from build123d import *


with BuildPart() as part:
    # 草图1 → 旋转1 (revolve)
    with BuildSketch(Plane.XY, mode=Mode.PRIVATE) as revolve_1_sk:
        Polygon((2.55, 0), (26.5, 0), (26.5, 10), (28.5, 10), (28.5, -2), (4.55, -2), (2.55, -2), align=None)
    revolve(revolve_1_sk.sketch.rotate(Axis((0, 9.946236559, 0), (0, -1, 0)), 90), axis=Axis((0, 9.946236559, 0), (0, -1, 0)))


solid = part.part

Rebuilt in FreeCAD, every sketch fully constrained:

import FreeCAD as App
import Part
import Sketcher
from FreeCAD import Vector
Q = App.Units.Quantity

doc = App.newDocument("Part")
params = doc.addObject("Spreadsheet::Sheet", "Params")
for row, (alias, value) in enumerate([
    ("sketch1_width", "2 mm"),
    ("sketch1_height", "12 mm"),
    ("sketch1_width2", "23.95 mm"),
    ("revolution_angle", "360 deg"),
], start=1):
    params.set(f"A{row}", alias)
    params.set(f"B{row}", "=" + value)
    params.setAlias(f"B{row}", alias)

body = doc.addObject("PartDesign::Body", "Body")

sketch1 = doc.addObject("Sketcher::SketchObject", "Sketch")
body.addObject(sketch1)
sketch1.AttachmentSupport = (doc.XY_Plane, [""])
sketch1.MapMode = "FlatFace"
sketch1.addGeometry(Part.LineSegment(Vector(26.5, 0, 0), Vector(2.5, 0, 0)), False)
sketch1.addGeometry(Part.LineSegment(Vector(2.5, 0, 0), Vector(2.5, -2, 0)), False)
sketch1.addGeometry(Part.LineSegment(Vector(2.5, -2, 0), Vector(28.5, -2, 0)), False)
sketch1.addGeometry(Part.LineSegment(Vector(28.5, -2, 0), Vector(28.5, 10, 0)), False)
sketch1.addGeometry(Part.LineSegment(Vector(28.5, 10, 0), Vector(26.5, 10, 0)), False)
sketch1.addGeometry(Part.LineSegment(Vector(26.5, 10, 0), Vector(26.5, 0, 0)), False)
sketch1.addConstraint(Sketcher.Constraint("Coincident", 0, 2, 1, 1))
sketch1.addConstraint(Sketcher.Constraint("Coincident", 1, 2, 2, 1))
sketch1.addConstraint(Sketcher.Constraint("Coincident", 2, 2, 3, 1))
sketch1.addConstraint(Sketcher.Constraint("Coincident", 3, 2, 4, 1))
sketch1.addConstraint(Sketcher.Constraint("Coincident", 4, 2, 5, 1))
sketch1.addConstraint(Sketcher.Constraint("Coincident", 5, 2, 0, 1))
sketch1.addConstraint(Sketcher.Constraint("Horizontal", 0))
sketch1.addConstraint(Sketcher.Constraint("Vertical", 1))
sketch1.addConstraint(Sketcher.Constraint("Horizontal", 2))
sketch1.addConstraint(Sketcher.Constraint("Vertical", 3))
sketch1.addConstraint(Sketcher.Constraint("Horizontal", 4))
sketch1.addConstraint(Sketcher.Constraint("Vertical", 5))
sketch1.addConstraint(Sketcher.Constraint("PointOnObject", 0, 2, -1))
sketch1.addConstraint(Sketcher.Constraint("Equal", 4, 1))
sketch1.addConstraint(Sketcher.Constraint("DistanceX", 4, 2, 4, 1, Q("2 mm")))
sketch1.addConstraint(Sketcher.Constraint("DistanceY", 3, 1, 3, 2, Q("12 mm")))
sketch1.addConstraint(Sketcher.Constraint("DistanceX", 0, 2, 0, 1, Q("23.95 mm")))
sketch1.addConstraint(Sketcher.Constraint("DistanceX", -1, 1, 2, 2, Q("28.5 mm")))
sketch1.setExpression("Constraints[14]", "Params.sketch1_width")
sketch1.setExpression("Constraints[15]", "Params.sketch1_height")
sketch1.setExpression("Constraints[16]", "Params.sketch1_width2")
revolution = doc.addObject("PartDesign::Revolution", "Revolution")
body.addObject(revolution)
revolution.Profile = sketch1
revolution.ReferenceAxis = (sketch1, ["V_Axis"])
revolution.setExpression("Angle", "Params.revolution_angle")

doc.recompute()
